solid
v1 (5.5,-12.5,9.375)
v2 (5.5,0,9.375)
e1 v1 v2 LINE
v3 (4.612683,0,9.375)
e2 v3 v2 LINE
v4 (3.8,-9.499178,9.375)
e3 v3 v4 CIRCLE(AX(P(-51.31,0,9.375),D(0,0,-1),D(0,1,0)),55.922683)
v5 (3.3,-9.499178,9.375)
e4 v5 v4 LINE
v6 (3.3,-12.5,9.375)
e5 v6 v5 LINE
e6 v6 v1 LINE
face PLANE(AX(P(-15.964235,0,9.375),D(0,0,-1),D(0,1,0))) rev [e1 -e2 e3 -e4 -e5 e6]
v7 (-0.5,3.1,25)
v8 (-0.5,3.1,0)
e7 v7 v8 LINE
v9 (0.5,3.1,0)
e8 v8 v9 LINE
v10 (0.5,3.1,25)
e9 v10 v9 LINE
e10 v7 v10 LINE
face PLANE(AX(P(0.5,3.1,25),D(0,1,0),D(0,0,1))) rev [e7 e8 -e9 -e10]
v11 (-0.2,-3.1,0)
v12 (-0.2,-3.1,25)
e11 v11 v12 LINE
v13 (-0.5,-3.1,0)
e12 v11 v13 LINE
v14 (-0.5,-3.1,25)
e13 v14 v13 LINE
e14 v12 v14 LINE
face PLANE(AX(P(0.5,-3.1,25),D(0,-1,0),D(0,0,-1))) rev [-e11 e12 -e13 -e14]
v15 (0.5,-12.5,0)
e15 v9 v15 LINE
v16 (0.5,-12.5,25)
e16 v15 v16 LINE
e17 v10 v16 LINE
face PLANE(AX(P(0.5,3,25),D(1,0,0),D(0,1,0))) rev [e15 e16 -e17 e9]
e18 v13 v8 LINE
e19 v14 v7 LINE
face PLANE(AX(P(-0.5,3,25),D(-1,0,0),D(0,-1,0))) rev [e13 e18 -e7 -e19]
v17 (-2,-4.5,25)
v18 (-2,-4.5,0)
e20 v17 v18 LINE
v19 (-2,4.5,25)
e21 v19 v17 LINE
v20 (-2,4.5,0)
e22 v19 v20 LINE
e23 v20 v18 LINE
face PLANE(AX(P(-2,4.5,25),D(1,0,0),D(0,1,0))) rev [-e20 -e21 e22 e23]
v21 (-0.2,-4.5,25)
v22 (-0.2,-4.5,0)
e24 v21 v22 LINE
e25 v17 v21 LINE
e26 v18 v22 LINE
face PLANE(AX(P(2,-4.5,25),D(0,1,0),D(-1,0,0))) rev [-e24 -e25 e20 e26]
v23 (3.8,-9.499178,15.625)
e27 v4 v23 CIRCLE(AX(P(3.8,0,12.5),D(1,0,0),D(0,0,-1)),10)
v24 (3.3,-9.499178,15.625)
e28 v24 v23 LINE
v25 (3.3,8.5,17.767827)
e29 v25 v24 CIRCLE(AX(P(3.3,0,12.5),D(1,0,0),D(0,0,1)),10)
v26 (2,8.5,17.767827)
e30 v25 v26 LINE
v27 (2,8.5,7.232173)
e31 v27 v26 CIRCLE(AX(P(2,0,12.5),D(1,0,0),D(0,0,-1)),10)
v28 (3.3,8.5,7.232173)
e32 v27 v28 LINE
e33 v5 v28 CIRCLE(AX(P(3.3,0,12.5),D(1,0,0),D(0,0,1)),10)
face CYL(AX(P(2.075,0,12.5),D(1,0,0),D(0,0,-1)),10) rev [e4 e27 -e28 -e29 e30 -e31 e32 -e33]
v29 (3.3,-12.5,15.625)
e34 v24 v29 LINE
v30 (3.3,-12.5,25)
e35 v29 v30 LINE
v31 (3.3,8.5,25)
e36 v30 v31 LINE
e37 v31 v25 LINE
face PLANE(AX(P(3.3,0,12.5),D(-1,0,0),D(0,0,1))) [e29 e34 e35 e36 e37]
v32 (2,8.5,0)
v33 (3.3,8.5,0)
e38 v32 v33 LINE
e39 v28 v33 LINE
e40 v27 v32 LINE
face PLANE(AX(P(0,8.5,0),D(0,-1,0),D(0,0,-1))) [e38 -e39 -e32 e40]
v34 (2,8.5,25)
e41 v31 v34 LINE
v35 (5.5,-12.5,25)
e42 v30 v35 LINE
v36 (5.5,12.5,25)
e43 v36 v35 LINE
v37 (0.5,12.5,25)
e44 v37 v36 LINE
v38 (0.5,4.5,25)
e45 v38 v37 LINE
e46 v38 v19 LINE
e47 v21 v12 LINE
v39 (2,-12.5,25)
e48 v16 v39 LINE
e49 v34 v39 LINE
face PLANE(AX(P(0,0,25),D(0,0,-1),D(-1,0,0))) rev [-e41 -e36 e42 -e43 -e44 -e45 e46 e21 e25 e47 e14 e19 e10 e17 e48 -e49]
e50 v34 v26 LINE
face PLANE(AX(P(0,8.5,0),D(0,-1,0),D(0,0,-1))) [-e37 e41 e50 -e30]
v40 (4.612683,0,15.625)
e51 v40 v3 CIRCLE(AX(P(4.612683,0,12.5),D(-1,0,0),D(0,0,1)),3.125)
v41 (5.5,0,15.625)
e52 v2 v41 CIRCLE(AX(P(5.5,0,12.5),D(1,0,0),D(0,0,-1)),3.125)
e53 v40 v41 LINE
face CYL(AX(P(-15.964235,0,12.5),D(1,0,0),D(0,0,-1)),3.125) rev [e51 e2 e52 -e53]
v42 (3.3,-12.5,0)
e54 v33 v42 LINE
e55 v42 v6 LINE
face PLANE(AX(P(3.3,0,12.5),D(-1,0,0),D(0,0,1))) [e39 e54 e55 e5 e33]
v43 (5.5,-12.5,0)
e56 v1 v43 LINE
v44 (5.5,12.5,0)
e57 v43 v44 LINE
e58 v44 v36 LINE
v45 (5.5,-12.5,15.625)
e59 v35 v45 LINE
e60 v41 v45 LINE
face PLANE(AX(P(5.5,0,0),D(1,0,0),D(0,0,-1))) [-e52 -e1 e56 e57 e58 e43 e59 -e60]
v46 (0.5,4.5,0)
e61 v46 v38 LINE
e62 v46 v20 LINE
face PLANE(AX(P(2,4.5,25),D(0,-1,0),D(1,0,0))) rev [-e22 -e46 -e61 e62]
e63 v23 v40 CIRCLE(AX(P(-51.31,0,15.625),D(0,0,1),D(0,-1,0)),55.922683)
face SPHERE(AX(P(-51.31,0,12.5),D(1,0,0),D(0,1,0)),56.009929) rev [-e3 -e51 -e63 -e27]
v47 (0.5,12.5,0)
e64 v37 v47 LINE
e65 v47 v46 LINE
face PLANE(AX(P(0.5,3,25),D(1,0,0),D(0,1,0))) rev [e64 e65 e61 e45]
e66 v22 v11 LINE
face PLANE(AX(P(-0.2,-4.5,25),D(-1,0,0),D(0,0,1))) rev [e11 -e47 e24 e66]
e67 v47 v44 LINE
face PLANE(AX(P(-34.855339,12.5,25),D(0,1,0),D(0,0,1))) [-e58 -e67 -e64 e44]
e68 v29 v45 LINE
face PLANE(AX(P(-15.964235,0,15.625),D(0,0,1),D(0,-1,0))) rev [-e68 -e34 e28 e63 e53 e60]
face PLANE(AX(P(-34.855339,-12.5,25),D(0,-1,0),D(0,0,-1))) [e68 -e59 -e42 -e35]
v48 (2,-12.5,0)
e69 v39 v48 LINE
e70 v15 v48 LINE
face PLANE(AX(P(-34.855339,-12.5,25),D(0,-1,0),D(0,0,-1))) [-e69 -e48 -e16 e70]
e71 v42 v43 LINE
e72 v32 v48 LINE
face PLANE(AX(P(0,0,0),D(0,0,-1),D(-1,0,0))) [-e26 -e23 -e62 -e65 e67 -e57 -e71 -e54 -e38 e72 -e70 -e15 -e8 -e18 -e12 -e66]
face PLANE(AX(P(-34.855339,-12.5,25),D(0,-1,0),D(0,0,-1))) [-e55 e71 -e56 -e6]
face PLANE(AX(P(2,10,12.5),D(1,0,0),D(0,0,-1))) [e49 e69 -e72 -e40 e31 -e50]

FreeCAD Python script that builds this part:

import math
import FreeCAD as App
import Part
import Sketcher
from FreeCAD import Vector

doc = App.newDocument("Part")
body = doc.addObject("PartDesign::Body", "Body")

sketch1 = doc.addObject("Sketcher::SketchObject", "Sketch")
body.addObject(sketch1)
sketch1.AttachmentSupport = (doc.XY_Plane, [""])
sketch1.MapMode = "FlatFace"
sketch1.addGeometry([
    Part.LineSegment(Vector(-2, 4.5, 0), Vector(-2, -4.5, 0)),
    Part.LineSegment(Vector(-2, -4.5, 0), Vector(2, -4.5, 0)),
    Part.LineSegment(Vector(2, -4.5, 0), Vector(2, 4.5, 0)),
    Part.LineSegment(Vector(2, 4.5, 0), Vector(-2, 4.5, 0)),
], False)
sketch1.addConstraint([
    Sketcher.Constraint("Coincident", 0, 2, 1, 1),
    Sketcher.Constraint("Coincident", 1, 2, 2, 1),
    Sketcher.Constraint("Coincident", 2, 2, 3, 1),
    Sketcher.Constraint("Coincident", 3, 2, 0, 1),
    Sketcher.Constraint("Vertical", 0),
    Sketcher.Constraint("Horizontal", 1),
    Sketcher.Constraint("Vertical", 2),
    Sketcher.Constraint("Horizontal", 3),
    Sketcher.Constraint("Symmetric", 0, 2, 2, 2, -1, 1),
    Sketcher.Constraint("DistanceX", 1, 1, 1, 2, 4.0),
    Sketcher.Constraint("DistanceY", 0, 2, 0, 1, 9.0),
])
pad1 = doc.addObject("PartDesign::Pad", "Pad")
body.addObject(pad1)
pad1.Profile = sketch1
pad1.Length = 25

sketch2 = doc.addObject("Sketcher::SketchObject", "Sketch001")
body.addObject(sketch2)
sketch2.AttachmentSupport = (doc.XY_Plane, [""])
sketch2.MapMode = "FlatFace"
sketch2.addGeometry([
    Part.LineSegment(Vector(0.5, 3, 0), Vector(0.5, -3, 0)),
    Part.LineSegment(Vector(0.5, -3, 0), Vector(-0.5, -3, 0)),
    Part.LineSegment(Vector(-0.5, -3, 0), Vector(-0.5, 3, 0)),
    Part.LineSegment(Vector(-0.5, 3, 0), Vector(0.5, 3, 0)),
], False)
sketch2.addConstraint([
    Sketcher.Constraint("Coincident", 0, 2, 1, 1),
    Sketcher.Constraint("Coincident", 1, 2, 2, 1),
    Sketcher.Constraint("Coincident", 2, 2, 3, 1),
    Sketcher.Constraint("Coincident", 3, 2, 0, 1),
    Sketcher.Constraint("Vertical", 0),
    Sketcher.Constraint("Horizontal", 1),
    Sketcher.Constraint("Vertical", 2),
    Sketcher.Constraint("Horizontal", 3),
    Sketcher.Constraint("Symmetric", 0, 2, 2, 2, -1, 1),
    Sketcher.Constraint("DistanceX", 1, 2, 1, 1, 1.0),
    Sketcher.Constraint("DistanceY", 0, 2, 0, 1, 6.0),
])
pocket1 = doc.addObject("PartDesign::Pocket", "Pocket")
body.addObject(pocket1)
pocket1.Profile = sketch2
pocket1.Type = "ThroughAll"
pocket1.Reversed = True

sketch3 = doc.addObject("Sketcher::SketchObject", "Sketch002")
body.addObject(sketch3)
sketch3.AttachmentSupport = (doc.YZ_Plane, [""])
sketch3.MapMode = "FlatFace"
sketch3.AttachmentOffset = App.Placement(Vector(0, 0, 2), App.Rotation())
sketch3.addGeometry([
    Part.LineSegment(Vector(12, 25, 0), Vector(-12, 25, 0)),
    Part.LineSegment(Vector(-12, 25, 0), Vector(-12, 0, 0)),
    Part.LineSegment(Vector(-12, 0, 0), Vector(12, 0, 0)),
    Part.LineSegment(Vector(12, 0, 0), Vector(12, 25, 0)),
], False)
sketch3.addConstraint([
    Sketcher.Constraint("Coincident", 0, 2, 1, 1),
    Sketcher.Constraint("Coincident", 1, 2, 2, 1),
    Sketcher.Constraint("Coincident", 2, 2, 3, 1),
    Sketcher.Constraint("Coincident", 3, 2, 0, 1),
    Sketcher.Constraint("Horizontal", 0),
    Sketcher.Constraint("Vertical", 1),
    Sketcher.Constraint("Horizontal", 2),
    Sketcher.Constraint("Vertical", 3),
    Sketcher.Constraint("Symmetric", 1, 2, 2, 2, -1, 1),
    Sketcher.Constraint("Equal", 2, 1),
    Sketcher.Constraint("DistanceX", 0, 2, 0, 1, 25.0),
])
pad2 = doc.addObject("PartDesign::Pad", "Pad001")
body.addObject(pad2)
pad2.Profile = sketch3
pad2.Length = 1.5
pad2.Reversed = True

sketch4 = doc.addObject("Sketcher::SketchObject", "Sketch003")
body.addObject(sketch4)
sketch4.AttachmentSupport = (doc.YZ_Plane, [""])
sketch4.MapMode = "FlatFace"
sketch4.AttachmentOffset = App.Placement(Vector(0, 0, 2), App.Rotation())
sketch4.addGeometry([
    Part.LineSegment(Vector(12, 25, 0), Vector(-12, 25, 0)),
    Part.LineSegment(Vector(-12, 25, 0), Vector(-12, 0, 0)),
    Part.LineSegment(Vector(-12, 0, 0), Vector(12, 0, 0)),
    Part.LineSegment(Vector(12, 0, 0), Vector(12, 25, 0)),
], False)
sketch4.addConstraint([
    Sketcher.Constraint("Coincident", 0, 2, 1, 1),
    Sketcher.Constraint("Coincident", 1, 2, 2, 1),
    Sketcher.Constraint("Coincident", 2, 2, 3, 1),
    Sketcher.Constraint("Coincident", 3, 2, 0, 1),
    Sketcher.Constraint("Horizontal", 0),
    Sketcher.Constraint("Vertical", 1),
    Sketcher.Constraint("Horizontal", 2),
    Sketcher.Constraint("Vertical", 3),
    Sketcher.Constraint("Symmetric", 1, 2, 2, 2, -1, 1),
    Sketcher.Constraint("Equal", 2, 1),
    Sketcher.Constraint("DistanceX", 0, 2, 0, 1, 25.0),
])
pad3 = doc.addObject("PartDesign::Pad", "Pad002")
body.addObject(pad3)
pad3.Profile = sketch4
pad3.Length = 3.5

sketch5 = doc.addObject("Sketcher::SketchObject", "Sketch004")
body.addObject(sketch5)
sketch5.AttachmentSupport = (doc.XY_Plane, [""])
sketch5.MapMode = "FlatFace"
sketch5.AttachmentOffset = App.Placement(Vector(0, 0, 12.5), App.Rotation())
sketch5.addGeometry([
    Part.LineSegment(Vector(2, 0, 0), Vector(2, 10, 0)),
    Part.LineSegment(Vector(2, 10, 0), Vector(3.8, 10, 0)),
    Part.ArcOfCircle(Part.Circle(Vector(-51.3, 0, 0), Vector(0, 0, 1), 56), math.radians(0), math.radians(10.28)),
    Part.LineSegment(Vector(4.7, 0, 0), Vector(2, 0, 0)),
], False)
sketch5.addConstraint([
    Sketcher.Constraint("Coincident", 0, 2, 1, 1),
    Sketcher.Constraint("Coincident", 1, 2, 2, 2),
    Sketcher.Constraint("Coincident", 2, 1, 3, 1),
    Sketcher.Constraint("Coincident", 3, 2, 0, 1),
    Sketcher.Constraint("Vertical", 0),
    Sketcher.Constraint("Horizontal", 1),
    Sketcher.Constraint("Horizontal", 3),
    Sketcher.Constraint("PointOnObject", 2, 3, -1),
    Sketcher.Constraint("PointOnObject", 2, 1, -1),
    Sketcher.Constraint("DistanceY", 0, 1, 0, 2, 10.0),
    Sketcher.Constraint("DistanceX", 1, 1, 1, 2, 1.8),
    Sketcher.Constraint("DistanceX", -1, 1, 0, 2, 2.0),
    Sketcher.Constraint("DistanceX", 2, 3, -1, 1, 51.31),
])
groove = doc.addObject("PartDesign::Groove", "Groove")
body.addObject(groove)
groove.Profile = sketch5
groove.ReferenceAxis = (sketch5, ["H_Axis"])
groove.Angle = 360

sketch6 = doc.addObject("Sketcher::SketchObject", "Sketch005")
body.addObject(sketch6)
sketch6.AttachmentSupport = (doc.XZ_Plane, [""])
sketch6.MapMode = "FlatFace"
sketch6.AttachmentOffset = App.Placement(Vector(0, 0, 12.5), App.Rotation())
sketch6.addGeometry([
    Part.LineSegment(Vector(2, 25, 0), Vector(2, 0, 0)),
    Part.LineSegment(Vector(2, 0, 0), Vector(3.8, 0, 0)),
    Part.LineSegment(Vector(3.8, 0, 0), Vector(3.8, 25, 0)),
    Part.LineSegment(Vector(3.8, 25, 0), Vector(2, 25, 0)),
], False)
sketch6.addConstraint([
    Sketcher.Constraint("Coincident", 0, 2, 1, 1),
    Sketcher.Constraint("Coincident", 1, 2, 2, 1),
    Sketcher.Constraint("Coincident", 2, 2, 3, 1),
    Sketcher.Constraint("Coincident", 3, 2, 0, 1),
    Sketcher.Constraint("Vertical", 0),
    Sketcher.Constraint("Horizontal", 1),
    Sketcher.Constraint("Vertical", 2),
    Sketcher.Constraint("Horizontal", 3),
    Sketcher.Constraint("PointOnObject", 0, 2, -1),
    Sketcher.Constraint("DistanceY", 0, 2, 0, 1, 25.0),
    Sketcher.Constraint("DistanceX", 1, 1, 1, 2, 1.8),
    Sketcher.Constraint("DistanceX", -1, 1, 0, 2, 2.0),
])
pocket2 = doc.addObject("PartDesign::Pocket", "Pocket001")
body.addObject(pocket2)
pocket2.Profile = sketch6
pocket2.Length = 21

sketch7 = doc.addObject("Sketcher::SketchObject", "Sketch006")
body.addObject(sketch7)
sketch7.AttachmentSupport = (doc.YZ_Plane, [""])
sketch7.MapMode = "FlatFace"
sketch7.AttachmentOffset = App.Placement(Vector(0, 0, 3.8), App.Rotation())
sketch7.addGeometry([
    Part.LineSegment(Vector(-12.5, 9.4, 0), Vector(0, 9.4, 0)),
    Part.ArcOfCircle(Part.Circle(Vector(0, 12.5, 0), Vector(0, 0, 1), 3.1), math.radians(-90), math.radians(90)),
    Part.LineSegment(Vector(0, 15.6, 0), Vector(-12.5, 15.6, 0)),
    Part.ArcOfCircle(Part.Circle(Vector(-12.5, 12.5, 0), Vector(0, 0, 1), 3.1), math.radians(90), math.radians(270)),
], False)
sketch7.addConstraint([
    Sketcher.Constraint("Tangent", 0, 2, 1, 1),
    Sketcher.Constraint("Tangent", 1, 2, 2, 1),
    Sketcher.Constraint("Tangent", 2, 2, 3, 1),
    Sketcher.Constraint("Tangent", 3, 2, 0, 1),
    Sketcher.Constraint("Horizontal", 0),
    Sketcher.Constraint("Horizontal", 2),
    Sketcher.Constraint("PointOnObject", 1, 3, -2),
    Sketcher.Constraint("DistanceX", 0, 1, 0, 2, 12.5),
    Sketcher.Constraint("Radius", 1, 3.125),
    Sketcher.Constraint("DistanceY", -1, 1, 1, 3, 12.5),
])
pocket3 = doc.addObject("PartDesign::Pocket", "Pocket002")
body.addObject(pocket3)
pocket3.Profile = sketch7
pocket3.Length = 1.7
pocket3.Reversed = True

sketch8 = doc.addObject("Sketcher::SketchObject", "Sketch007")
body.addObject(sketch8)
sketch8.AttachmentSupport = (doc.YZ_Plane, [""])
sketch8.MapMode = "FlatFace"
sketch8.AttachmentOffset = App.Placement(Vector(0, 0, 3.3), App.Rotation())
sketch8.addGeometry([
    Part.LineSegment(Vector(-9.5, 15.6, 0), Vector(-12.5, 15.6, 0)),
    Part.LineSegment(Vector(-12.5, 15.6, 0), Vector(-12.5, 25, 0)),
    Part.LineSegment(Vector(-12.5, 25, 0), Vector(8.5, 25, 0)),
    Part.LineSegment(Vector(8.5, 25, 0), Vector(8.5, 17.8, 0)),
    Part.ArcOfCircle(Part.Circle(Vector(0, 12.5, 0), Vector(0, 0, 1), 10), math.radians(32), math.radians(162)),
    Part.LineSegment(Vector(-12.5, 0, 0), Vector(-12.5, 9.4, 0)),
    Part.LineSegment(Vector(-12.5, 9.4, 0), Vector(-9.5, 9.4, 0)),
    Part.ArcOfCircle(Part.Circle(Vector(0, 12.5, 0), Vector(0, 0, 1), 10), math.radians(-162), math.radians(-32)),
    Part.LineSegment(Vector(8.5, 7.2, 0), Vector(8.5, 0, 0)),
    Part.LineSegment(Vector(8.5, 0, 0), Vector(-12.5, 0, 0)),
], False)
sketch8.addConstraint([
    Sketcher.Constraint("Coincident", 0, 2, 1, 1),
    Sketcher.Constraint("Coincident", 1, 2, 2, 1),
    Sketcher.Constraint("Coincident", 2, 2, 3, 1),
    Sketcher.Constraint("Coincident", 3, 2, 4, 1),
    Sketcher.Constraint("Coincident", 4, 2, 0, 1),
    Sketcher.Constraint("Coincident", 5, 2, 6, 1),
    Sketcher.Constraint("Coincident", 6, 2, 7, 1),
    Sketcher.Constraint("Coincident", 7, 2, 8, 1),
    Sketcher.Constraint("Coincident", 8, 2, 9, 1),
    Sketcher.Constraint("Coincident", 9, 2, 5, 1),
    Sketcher.Constraint("Horizontal", 0),
    Sketcher.Constraint("Vertical", 1),
    Sketcher.Constraint("Horizontal", 2),
    Sketcher.Constraint("Vertical", 3),
    Sketcher.Constraint("Vertical", 5),
    Sketcher.Constraint("Horizontal", 6),
    Sketcher.Constraint("Vertical", 8),
    Sketcher.Constraint("Horizontal", 9),
    Sketcher.Constraint("Coincident", 7, 3, 4, 3),
    Sketcher.Constraint("Equal", 4, 7),
    Sketcher.Constraint("PointOnObject", 4, 3, -2),
    Sketcher.Constraint("PointOnObject", 8, 2, -1),
    Sketcher.Constraint("Vertical", 1, 2, 5, 2),
    Sketcher.Constraint("Vertical", 4, 2, 6, 2),
    Sketcher.Constraint("Vertical", 3, 2, 7, 2),
    Sketcher.Constraint("Equal", 1, 5),
    Sketcher.Constraint("Radius", 4, 10.0),
    Sketcher.Constraint("DistanceX", 2, 1, 2, 2, 21.0),
    Sketcher.Constraint("DistanceY", -1, 1, 1, 2, 25.0),
    Sketcher.Constraint("DistanceX", 0, 2, -1, 1, 12.5),
    Sketcher.Constraint("DistanceY", 1, 1, 1, 2, 9.375),
])
pad4 = doc.addObject("PartDesign::Pad", "Pad003")
body.addObject(pad4)
pad4.Profile = sketch8
pad4.Length = 0.5

sketch9 = doc.addObject("Sketcher::SketchObject", "Sketch008")
body.addObject(sketch9)
sketch9.AttachmentSupport = (doc.XY_Plane, [""])
sketch9.MapMode = "FlatFace"
sketch9.addGeometry([
    Part.LineSegment(Vector(0.5, -3, 0), Vector(0.5, -4.5, 0)),
    Part.LineSegment(Vector(0.5, -4.5, 0), Vector(-0.2, -4.5, 0)),
    Part.LineSegment(Vector(-0.2, -4.5, 0), Vector(-0.2, -3, 0)),
    Part.LineSegment(Vector(-0.2, -3, 0), Vector(0.5, -3, 0)),
], False)
sketch9.addConstraint([
    Sketcher.Constraint("Coincident", 0, 2, 1, 1),
    Sketcher.Constraint("Coincident", 1, 2, 2, 1),
    Sketcher.Constraint("Coincident", 2, 2, 3, 1),
    Sketcher.Constraint("Coincident", 3, 2, 0, 1),
    Sketcher.Constraint("Vertical", 0),
    Sketcher.Constraint("Horizontal", 1),
    Sketcher.Constraint("Vertical", 2),
    Sketcher.Constraint("Horizontal", 3),
    Sketcher.Constraint("DistanceX", 1, 2, 1, 1, 0.7),
    Sketcher.Constraint("DistanceY", 0, 2, 0, 1, 1.5),
    Sketcher.Constraint("DistanceY", 2, 2, -1, 1, 3.0),
    Sketcher.Constraint("DistanceX", -1, 1, 0, 2, 0.5),
])
pocket4 = doc.addObject("PartDesign::Pocket", "Pocket003")
body.addObject(pocket4)
pocket4.Profile = sketch9
pocket4.Type = "ThroughAll"
pocket4.Reversed = True

sketch10 = doc.addObject("Sketcher::SketchObject", "Sketch009")
body.addObject(sketch10)
sketch10.AttachmentSupport = (doc.XY_Plane, [""])
sketch10.MapMode = "FlatFace"
sketch10.addGeometry([
    Part.LineSegment(Vector(0.5, 3.1, 0), Vector(0.5, -3.1, 0)),
    Part.LineSegment(Vector(0.5, -3.1, 0), Vector(-0.5, -3.1, 0)),
    Part.LineSegment(Vector(-0.5, -3.1, 0), Vector(-0.5, 3.1, 0)),
    Part.LineSegment(Vector(-0.5, 3.1, 0), Vector(0.5, 3.1, 0)),
], False)
sketch10.addConstraint([
    Sketcher.Constraint("Coincident", 0, 2, 1, 1),
    Sketcher.Constraint("Coincident", 1, 2, 2, 1),
    Sketcher.Constraint("Coincident", 2, 2, 3, 1),
    Sketcher.Constraint("Coincident", 3, 2, 0, 1),
    Sketcher.Constraint("Vertical", 0),
    Sketcher.Constraint("Horizontal", 1),
    Sketcher.Constraint("Vertical", 2),
    Sketcher.Constraint("Horizontal", 3),
    Sketcher.Constraint("Symmetric", 0, 2, 2, 2, -1, 1),
    Sketcher.Constraint("DistanceX", 1, 2, 1, 1, 1.0),
    Sketcher.Constraint("DistanceY", 0, 2, 0, 1, 6.2),
])
pocket5 = doc.addObject("PartDesign::Pocket", "Pocket004")
body.addObject(pocket5)
pocket5.Profile = sketch10
pocket5.Type = "ThroughAll"
pocket5.Reversed = True

doc.recompute()
